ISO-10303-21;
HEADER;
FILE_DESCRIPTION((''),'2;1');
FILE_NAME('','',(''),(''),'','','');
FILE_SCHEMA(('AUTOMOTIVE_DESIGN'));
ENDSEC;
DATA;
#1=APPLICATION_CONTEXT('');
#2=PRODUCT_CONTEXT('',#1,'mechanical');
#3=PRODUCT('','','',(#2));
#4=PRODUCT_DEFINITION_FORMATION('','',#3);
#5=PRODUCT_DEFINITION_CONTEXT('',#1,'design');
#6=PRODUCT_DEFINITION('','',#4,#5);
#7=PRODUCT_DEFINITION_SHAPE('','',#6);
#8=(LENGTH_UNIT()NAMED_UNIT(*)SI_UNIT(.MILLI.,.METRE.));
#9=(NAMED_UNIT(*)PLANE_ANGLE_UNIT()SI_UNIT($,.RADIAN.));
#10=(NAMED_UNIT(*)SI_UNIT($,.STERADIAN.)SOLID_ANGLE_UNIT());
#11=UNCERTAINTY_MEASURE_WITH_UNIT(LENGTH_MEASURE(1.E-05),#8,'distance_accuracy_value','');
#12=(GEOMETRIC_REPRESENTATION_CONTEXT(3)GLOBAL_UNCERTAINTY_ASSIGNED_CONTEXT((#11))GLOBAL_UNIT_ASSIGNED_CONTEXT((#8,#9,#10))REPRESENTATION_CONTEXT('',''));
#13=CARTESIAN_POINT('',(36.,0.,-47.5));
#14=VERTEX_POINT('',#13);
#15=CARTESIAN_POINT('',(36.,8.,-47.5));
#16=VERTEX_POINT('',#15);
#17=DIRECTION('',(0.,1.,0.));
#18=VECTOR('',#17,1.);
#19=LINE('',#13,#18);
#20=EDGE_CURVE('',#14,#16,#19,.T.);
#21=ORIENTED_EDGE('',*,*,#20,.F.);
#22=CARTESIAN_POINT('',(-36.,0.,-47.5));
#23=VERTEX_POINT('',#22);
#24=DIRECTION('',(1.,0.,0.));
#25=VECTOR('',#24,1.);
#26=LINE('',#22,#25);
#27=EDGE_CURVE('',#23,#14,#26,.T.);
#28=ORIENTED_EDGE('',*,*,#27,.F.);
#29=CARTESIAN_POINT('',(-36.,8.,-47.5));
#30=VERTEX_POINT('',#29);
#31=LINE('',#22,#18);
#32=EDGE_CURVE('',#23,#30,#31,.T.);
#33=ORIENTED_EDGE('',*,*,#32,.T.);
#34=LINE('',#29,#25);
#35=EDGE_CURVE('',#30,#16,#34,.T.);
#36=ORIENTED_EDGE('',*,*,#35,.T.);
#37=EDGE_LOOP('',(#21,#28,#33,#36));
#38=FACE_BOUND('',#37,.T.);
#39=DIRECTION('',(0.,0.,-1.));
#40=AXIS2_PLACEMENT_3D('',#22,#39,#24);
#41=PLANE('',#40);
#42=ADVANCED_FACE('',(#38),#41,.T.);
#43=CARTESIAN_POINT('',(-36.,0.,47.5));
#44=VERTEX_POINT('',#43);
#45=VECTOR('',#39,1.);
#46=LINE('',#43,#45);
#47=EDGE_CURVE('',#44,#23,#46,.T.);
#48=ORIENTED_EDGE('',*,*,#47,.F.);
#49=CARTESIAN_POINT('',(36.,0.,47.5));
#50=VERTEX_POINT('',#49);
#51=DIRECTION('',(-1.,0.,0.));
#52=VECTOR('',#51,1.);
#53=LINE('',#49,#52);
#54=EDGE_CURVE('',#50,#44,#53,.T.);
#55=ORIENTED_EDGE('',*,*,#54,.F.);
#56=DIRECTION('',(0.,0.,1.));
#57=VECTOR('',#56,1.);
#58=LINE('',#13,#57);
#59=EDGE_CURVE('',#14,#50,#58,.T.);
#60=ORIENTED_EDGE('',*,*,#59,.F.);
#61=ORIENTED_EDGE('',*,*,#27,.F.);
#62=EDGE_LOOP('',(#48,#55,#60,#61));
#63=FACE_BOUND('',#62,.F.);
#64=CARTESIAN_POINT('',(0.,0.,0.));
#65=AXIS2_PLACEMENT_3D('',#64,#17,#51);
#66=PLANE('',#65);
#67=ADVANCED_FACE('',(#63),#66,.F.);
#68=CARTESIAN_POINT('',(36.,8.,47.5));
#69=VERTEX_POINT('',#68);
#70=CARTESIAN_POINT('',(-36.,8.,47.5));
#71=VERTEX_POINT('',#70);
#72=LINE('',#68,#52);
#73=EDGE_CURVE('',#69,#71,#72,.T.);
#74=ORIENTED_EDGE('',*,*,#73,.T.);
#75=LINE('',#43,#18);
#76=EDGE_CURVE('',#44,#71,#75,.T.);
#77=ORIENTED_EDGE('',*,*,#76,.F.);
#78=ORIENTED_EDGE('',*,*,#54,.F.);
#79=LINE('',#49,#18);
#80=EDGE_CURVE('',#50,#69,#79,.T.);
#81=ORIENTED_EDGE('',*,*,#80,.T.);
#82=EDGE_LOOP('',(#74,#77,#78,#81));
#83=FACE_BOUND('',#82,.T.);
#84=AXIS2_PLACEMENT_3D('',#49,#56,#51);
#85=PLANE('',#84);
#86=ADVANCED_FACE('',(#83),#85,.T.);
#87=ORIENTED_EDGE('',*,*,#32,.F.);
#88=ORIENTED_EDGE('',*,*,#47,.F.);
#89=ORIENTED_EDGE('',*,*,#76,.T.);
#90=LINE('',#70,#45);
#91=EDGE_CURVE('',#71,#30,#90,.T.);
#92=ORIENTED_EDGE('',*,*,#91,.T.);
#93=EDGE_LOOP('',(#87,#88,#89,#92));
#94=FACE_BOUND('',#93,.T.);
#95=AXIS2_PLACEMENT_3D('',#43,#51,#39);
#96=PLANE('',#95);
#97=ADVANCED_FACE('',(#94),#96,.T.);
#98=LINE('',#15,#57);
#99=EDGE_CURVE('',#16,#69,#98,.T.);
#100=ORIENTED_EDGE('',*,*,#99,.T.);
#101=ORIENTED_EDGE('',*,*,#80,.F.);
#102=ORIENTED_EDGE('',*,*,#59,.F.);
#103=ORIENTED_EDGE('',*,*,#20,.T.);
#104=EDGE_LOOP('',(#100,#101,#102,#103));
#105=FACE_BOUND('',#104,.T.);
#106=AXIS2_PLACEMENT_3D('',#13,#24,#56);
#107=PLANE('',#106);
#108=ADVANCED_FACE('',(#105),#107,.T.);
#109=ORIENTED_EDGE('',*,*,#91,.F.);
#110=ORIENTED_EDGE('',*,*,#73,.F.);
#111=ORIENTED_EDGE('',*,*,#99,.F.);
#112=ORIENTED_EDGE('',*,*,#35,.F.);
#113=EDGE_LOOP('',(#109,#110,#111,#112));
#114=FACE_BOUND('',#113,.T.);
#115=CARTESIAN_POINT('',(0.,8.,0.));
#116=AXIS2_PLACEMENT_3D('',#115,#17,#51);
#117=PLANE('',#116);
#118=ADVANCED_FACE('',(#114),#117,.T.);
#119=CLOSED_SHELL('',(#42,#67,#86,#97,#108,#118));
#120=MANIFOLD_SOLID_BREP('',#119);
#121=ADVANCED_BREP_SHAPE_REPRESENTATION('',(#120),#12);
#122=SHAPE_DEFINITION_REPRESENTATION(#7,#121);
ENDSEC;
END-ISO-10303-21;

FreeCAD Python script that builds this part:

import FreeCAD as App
import Part
import Sketcher

doc = App.newDocument("Part")
body = doc.addObject("PartDesign::Body", "Body")

sketch1 = body.newObject("Sketcher::SketchObject", "Sketch")
sketch1.AttachmentSupport = (doc.getObject("XZ_Plane"), [""])
sketch1.MapMode = "FlatFace"
sketch1.addGeometry(Part.LineSegment(App.Vector(-36, 48, 0), App.Vector(36, 48, 0)), False)
sketch1.addGeometry(Part.LineSegment(App.Vector(36, 48, 0), App.Vector(36, -48, 0)), False)
sketch1.addGeometry(Part.LineSegment(App.Vector(36, -48, 0), App.Vector(-36, -48, 0)), False)
sketch1.addGeometry(Part.LineSegment(App.Vector(-36, -48, 0), App.Vector(-36, 48, 0)), False)
sketch1.addConstraint(Sketcher.Constraint("Coincident", 0, 2, 1, 1))
sketch1.addConstraint(Sketcher.Constraint("Coincident", 1, 2, 2, 1))
sketch1.addConstraint(Sketcher.Constraint("Coincident", 2, 2, 3, 1))
sketch1.addConstraint(Sketcher.Constraint("Coincident", 3, 2, 0, 1))
sketch1.addConstraint(Sketcher.Constraint("Horizontal", 0))
sketch1.addConstraint(Sketcher.Constraint("Vertical", 1))
sketch1.addConstraint(Sketcher.Constraint("Horizontal", 2))
sketch1.addConstraint(Sketcher.Constraint("Vertical", 3))
sketch1.addConstraint(Sketcher.Constraint("Symmetric", 0, 2, 2, 2, -1, 1))
sketch1.addConstraint(Sketcher.Constraint("DistanceX", 0, 1, 0, 2, 72.0))
sketch1.addConstraint(Sketcher.Constraint("DistanceY", 1, 2, 1, 1, 95.0))
pad1 = body.newObject("PartDesign::Pad", "Pad")
pad1.Profile = sketch1
pad1.Length = 8
pad1.Reversed = True

doc.recompute()
